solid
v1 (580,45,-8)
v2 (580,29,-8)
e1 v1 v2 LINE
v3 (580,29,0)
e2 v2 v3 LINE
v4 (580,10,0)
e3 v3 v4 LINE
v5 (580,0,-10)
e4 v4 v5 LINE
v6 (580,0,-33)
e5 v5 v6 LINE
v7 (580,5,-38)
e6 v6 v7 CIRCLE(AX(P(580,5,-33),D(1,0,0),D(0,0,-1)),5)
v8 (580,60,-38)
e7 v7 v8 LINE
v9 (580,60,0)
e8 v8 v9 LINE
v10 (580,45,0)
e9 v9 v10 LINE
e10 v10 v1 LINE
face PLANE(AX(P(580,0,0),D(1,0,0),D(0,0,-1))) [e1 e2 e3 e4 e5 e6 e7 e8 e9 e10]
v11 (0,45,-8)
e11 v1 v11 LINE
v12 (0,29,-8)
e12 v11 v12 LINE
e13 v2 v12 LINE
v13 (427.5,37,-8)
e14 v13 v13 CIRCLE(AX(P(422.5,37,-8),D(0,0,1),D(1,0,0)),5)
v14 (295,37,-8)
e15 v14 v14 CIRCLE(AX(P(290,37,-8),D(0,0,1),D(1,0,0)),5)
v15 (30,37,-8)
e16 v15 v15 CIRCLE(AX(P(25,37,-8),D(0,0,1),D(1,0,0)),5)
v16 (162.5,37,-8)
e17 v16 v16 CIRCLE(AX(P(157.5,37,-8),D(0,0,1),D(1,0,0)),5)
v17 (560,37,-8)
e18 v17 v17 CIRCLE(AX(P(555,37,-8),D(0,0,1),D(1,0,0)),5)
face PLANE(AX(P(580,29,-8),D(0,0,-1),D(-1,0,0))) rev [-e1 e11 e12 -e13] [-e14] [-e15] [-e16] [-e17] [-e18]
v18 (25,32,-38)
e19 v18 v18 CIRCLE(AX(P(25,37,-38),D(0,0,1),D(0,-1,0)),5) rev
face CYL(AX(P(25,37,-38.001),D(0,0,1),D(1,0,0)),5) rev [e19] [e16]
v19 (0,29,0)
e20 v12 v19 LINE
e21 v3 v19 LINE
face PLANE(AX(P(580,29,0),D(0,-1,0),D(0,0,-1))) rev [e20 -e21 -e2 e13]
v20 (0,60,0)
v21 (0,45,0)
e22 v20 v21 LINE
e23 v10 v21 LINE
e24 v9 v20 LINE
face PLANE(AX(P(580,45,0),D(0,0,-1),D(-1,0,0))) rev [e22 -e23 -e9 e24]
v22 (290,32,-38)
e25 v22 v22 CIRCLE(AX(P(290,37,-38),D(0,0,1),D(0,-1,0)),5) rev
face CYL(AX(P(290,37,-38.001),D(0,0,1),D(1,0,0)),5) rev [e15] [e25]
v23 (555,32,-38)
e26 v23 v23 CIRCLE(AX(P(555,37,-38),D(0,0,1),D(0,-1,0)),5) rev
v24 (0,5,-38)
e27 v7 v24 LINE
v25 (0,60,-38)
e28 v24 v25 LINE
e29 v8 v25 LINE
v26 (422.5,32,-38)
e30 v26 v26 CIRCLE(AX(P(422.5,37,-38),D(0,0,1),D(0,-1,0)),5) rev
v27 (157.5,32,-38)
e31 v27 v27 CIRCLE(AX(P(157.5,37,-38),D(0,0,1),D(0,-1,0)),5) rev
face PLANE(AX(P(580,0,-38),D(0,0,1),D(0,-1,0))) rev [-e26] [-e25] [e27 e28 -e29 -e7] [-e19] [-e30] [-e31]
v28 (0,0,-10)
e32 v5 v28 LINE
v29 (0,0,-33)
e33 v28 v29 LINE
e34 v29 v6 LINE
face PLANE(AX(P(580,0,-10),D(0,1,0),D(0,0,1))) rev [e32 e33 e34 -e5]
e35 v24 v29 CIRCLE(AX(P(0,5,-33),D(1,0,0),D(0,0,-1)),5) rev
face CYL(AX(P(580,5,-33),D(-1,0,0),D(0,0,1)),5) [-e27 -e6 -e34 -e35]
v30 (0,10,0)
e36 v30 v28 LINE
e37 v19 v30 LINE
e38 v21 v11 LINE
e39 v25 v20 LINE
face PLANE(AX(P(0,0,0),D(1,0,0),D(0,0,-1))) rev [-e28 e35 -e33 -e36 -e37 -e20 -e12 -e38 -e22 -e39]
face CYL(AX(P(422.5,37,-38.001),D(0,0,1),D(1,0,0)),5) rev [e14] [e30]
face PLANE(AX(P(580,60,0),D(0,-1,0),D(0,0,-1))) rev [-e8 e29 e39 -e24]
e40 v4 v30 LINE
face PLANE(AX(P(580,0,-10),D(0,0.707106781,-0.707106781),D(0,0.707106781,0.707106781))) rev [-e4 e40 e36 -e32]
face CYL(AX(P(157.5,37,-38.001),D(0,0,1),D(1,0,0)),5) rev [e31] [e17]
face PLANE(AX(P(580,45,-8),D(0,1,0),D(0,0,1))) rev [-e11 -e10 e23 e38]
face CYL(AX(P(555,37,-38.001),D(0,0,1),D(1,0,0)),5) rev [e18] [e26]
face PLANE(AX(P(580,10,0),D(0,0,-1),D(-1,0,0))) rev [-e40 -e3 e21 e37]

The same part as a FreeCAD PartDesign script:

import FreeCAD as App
import Part
import Sketcher
Q = App.Units.Quantity


def edges_at(feature, points):
    """Names of the edges that pass closest to the given points."""
    edges = feature.Shape.Edges
    near = lambda p: min(range(len(edges)), key=lambda i: edges[i].distToShape(Part.Vertex(*p))[0])
    return sorted({f"Edge{near(p) + 1}" for p in points})

doc = App.newDocument("Part")
params = doc.addObject("Spreadsheet::Sheet", "Params")
for row, (alias, value) in enumerate([
    ("sketch1_width", "60 mm"),
    ("sketch1_width2", "15 mm"),
    ("sketch1_width3", "16 mm"),
    ("sketch1_width4", "19 mm"),
    ("sketch1_height", "28 mm"),
    ("pad1_length", "580 mm"),
    ("fillet_radius", "5 mm"),
    ("sketch2_diameter", "10 mm"),
    ("sketch3_diameter", "10 mm"),
    ("sketch4_diameter", "10 mm"),
    ("sketch5_diameter", "10 mm"),
    ("sketch6_diameter", "10 mm"),
], start=1):
    params.set(f"A{row}", alias)
    params.set(f"B{row}", "=" + value)
    params.setAlias(f"B{row}", alias)

body = doc.addObject("PartDesign::Body", "Body")

# Sketch on YZ plane
sketch1 = body.newObject("Sketcher::SketchObject", "Sketch")
sketch1.AttachmentSupport = (doc.getObject("YZ_Plane"), [""])
sketch1.MapMode = "FlatFace"
sketch1.addGeometry([
    Part.LineSegment(App.Vector(10, 0, 0), App.Vector(0, -10, 0)),  # 0
    Part.LineSegment(App.Vector(0, -10, 0), App.Vector(0, -38, 0)),  # 1
    Part.LineSegment(App.Vector(0, -38, 0), App.Vector(60, -38, 0)),  # 2
    Part.LineSegment(App.Vector(60, -38, 0), App.Vector(60, 0, 0)),  # 3
    Part.LineSegment(App.Vector(60, 0, 0), App.Vector(45, 0, 0)),  # 4
    Part.LineSegment(App.Vector(45, 0, 0), App.Vector(45, -8, 0)),  # 5
    Part.LineSegment(App.Vector(45, -8, 0), App.Vector(29, -8, 0)),  # 6
    Part.LineSegment(App.Vector(29, -8, 0), App.Vector(29, 0, 0)),  # 7
    Part.LineSegment(App.Vector(29, 0, 0), App.Vector(10, 0, 0)),  # 8
], False)
sketch1.addConstraint([
    Sketcher.Constraint("Coincident", 0, 2, 1, 1),
    Sketcher.Constraint("Coincident", 1, 2, 2, 1),
    Sketcher.Constraint("Coincident", 2, 2, 3, 1),
    Sketcher.Constraint("Coincident", 3, 2, 4, 1),
    Sketcher.Constraint("Coincident", 4, 2, 5, 1),
    Sketcher.Constraint("Coincident", 5, 2, 6, 1),
    Sketcher.Constraint("Coincident", 6, 2, 7, 1),
    Sketcher.Constraint("Coincident", 7, 2, 8, 1),
    Sketcher.Constraint("Coincident", 8, 2, 0, 1),
    Sketcher.Constraint("Vertical", 1),
    Sketcher.Constraint("Horizontal", 2),
    Sketcher.Constraint("Vertical", 3),
    Sketcher.Constraint("Horizontal", 4),
    Sketcher.Constraint("Vertical", 5),
    Sketcher.Constraint("Horizontal", 6),
    Sketcher.Constraint("Vertical", 7),
    Sketcher.Constraint("Horizontal", 8),
    Sketcher.Constraint("PointOnObject", 0, 2, -2),
    Sketcher.Constraint("PointOnObject", 3, 2, -1),
    Sketcher.Constraint("PointOnObject", 7, 2, -1),
    Sketcher.Constraint("DistanceX", 2, 1, 2, 2, Q("60 mm")),
    Sketcher.Constraint("DistanceX", 4, 2, 4, 1, Q("15 mm")),
    Sketcher.Constraint("DistanceX", 6, 2, 6, 1, Q("16 mm")),
    Sketcher.Constraint("DistanceX", 8, 2, 8, 1, Q("19 mm")),
    Sketcher.Constraint("DistanceY", 1, 2, 1, 1, Q("28 mm")),
    Sketcher.Constraint("DistanceY", 3, 1, 3, 2, Q("38 mm")),
    Sketcher.Constraint("DistanceY", 5, 2, 5, 1, Q("8 mm")),
])
sketch1.setExpression("Constraints[20]", "Params.sketch1_width")
sketch1.setExpression("Constraints[21]", "Params.sketch1_width2")
sketch1.setExpression("Constraints[22]", "Params.sketch1_width3")
sketch1.setExpression("Constraints[23]", "Params.sketch1_width4")
sketch1.setExpression("Constraints[24]", "Params.sketch1_height")
pad1 = body.newObject("PartDesign::Pad", "Pad")
pad1.Profile = sketch1
pad1.setExpression("Length", "Params.pad1_length")
doc.recompute()

fillet = body.newObject("PartDesign::Fillet", "Fillet")
fillet.Base = (pad1, edges_at(pad1, [(290, 0, -38)]))
fillet.setExpression("Radius", "Params.fillet_radius")

# Sketch on XY plane
sketch2 = body.newObject("Sketcher::SketchObject", "Sketch001")
sketch2.AttachmentSupport = (doc.getObject("XY_Plane"), [""])
sketch2.MapMode = "FlatFace"
sketch2.AttachmentOffset = App.Placement(App.Vector(0, 0, -8), App.Rotation())
sketch2.addGeometry(Part.Circle(App.Vector(25, 37, 0), App.Vector(0, 0, 1), 5), False)
sketch2.addConstraint([
    Sketcher.Constraint("Diameter", 0, Q("10 mm")),
    Sketcher.Constraint("DistanceX", -1, 1, 0, 3, Q("25 mm")),
    Sketcher.Constraint("DistanceY", -1, 1, 0, 3, Q("37 mm")),
])
sketch2.setExpression("Constraints[0]", "Params.sketch2_diameter")
pocket1 = body.newObject("PartDesign::Pocket", "Pocket")
pocket1.Profile = sketch2
pocket1.Type = "UpToFirst"

# Sketch on XY plane
sketch3 = body.newObject("Sketcher::SketchObject", "Sketch002")
sketch3.AttachmentSupport = (doc.getObject("XY_Plane"), [""])
sketch3.MapMode = "FlatFace"
sketch3.AttachmentOffset = App.Placement(App.Vector(0, 0, -8), App.Rotation())
sketch3.addGeometry(Part.Circle(App.Vector(158, 37, 0), App.Vector(0, 0, 1), 5), False)
sketch3.addConstraint([
    Sketcher.Constraint("Diameter", 0, Q("10 mm")),
    Sketcher.Constraint("DistanceY", -1, 1, 0, 3, Q("37 mm")),
    Sketcher.Constraint("DistanceX", -1, 1, 0, 3, Q("157.5 mm")),
])
sketch3.setExpression("Constraints[0]", "Params.sketch3_diameter")
pocket2 = body.newObject("PartDesign::Pocket", "Pocket001")
pocket2.Profile = sketch3
pocket2.Type = "UpToFirst"

# Sketch on XY plane
sketch4 = body.newObject("Sketcher::SketchObject", "Sketch003")
sketch4.AttachmentSupport = (doc.getObject("XY_Plane"), [""])
sketch4.MapMode = "FlatFace"
sketch4.AttachmentOffset = App.Placement(App.Vector(0, 0, -8), App.Rotation())
sketch4.addGeometry(Part.Circle(App.Vector(555, 37, 0), App.Vector(0, 0, 1), 5), False)
sketch4.addConstraint([
    Sketcher.Constraint("Diameter", 0, Q("10 mm")),
    Sketcher.Constraint("DistanceX", -1, 1, 0, 3, Q("555 mm")),
    Sketcher.Constraint("DistanceY", -1, 1, 0, 3, Q("37 mm")),
])
sketch4.setExpression("Constraints[0]", "Params.sketch4_diameter")
pocket3 = body.newObject("PartDesign::Pocket", "Pocket002")
pocket3.Profile = sketch4
pocket3.Type = "UpToFirst"

# Sketch on XY plane
sketch5 = body.newObject("Sketcher::SketchObject", "Sketch004")
sketch5.AttachmentSupport = (doc.getObject("XY_Plane"), [""])
sketch5.MapMode = "FlatFace"
sketch5.AttachmentOffset = App.Placement(App.Vector(0, 0, -8), App.Rotation())
sketch5.addGeometry(Part.Circle(App.Vector(290, 37, 0), App.Vector(0, 0, 1), 5), False)
sketch5.addConstraint([
    Sketcher.Constraint("Diameter", 0, Q("10 mm")),
    Sketcher.Constraint("DistanceX", -1, 1, 0, 3, Q("290 mm")),
    Sketcher.Constraint("DistanceY", -1, 1, 0, 3, Q("37 mm")),
])
sketch5.setExpression("Constraints[0]", "Params.sketch5_diameter")
pocket4 = body.newObject("PartDesign::Pocket", "Pocket003")
pocket4.Profile = sketch5
pocket4.Type = "UpToFirst"

# Sketch on XY plane
sketch6 = body.newObject("Sketcher::SketchObject", "Sketch005")
sketch6.AttachmentSupport = (doc.getObject("XY_Plane"), [""])
sketch6.MapMode = "FlatFace"
sketch6.AttachmentOffset = App.Placement(App.Vector(0, 0, -8), App.Rotation())
sketch6.addGeometry(Part.Circle(App.Vector(422, 37, 0), App.Vector(0, 0, 1), 5), False)
sketch6.addConstraint([
    Sketcher.Constraint("Diameter", 0, Q("10 mm")),
    Sketcher.Constraint("DistanceY", -1, 1, 0, 3, Q("37 mm")),
    Sketcher.Constraint("DistanceX", -1, 1, 0, 3, Q("422.5 mm")),
])
sketch6.setExpression("Constraints[0]", "Params.sketch6_diameter")
pocket5 = body.newObject("PartDesign::Pocket", "Pocket004")
pocket5.Profile = sketch6
pocket5.Type = "UpToFirst"

doc.recompute()
